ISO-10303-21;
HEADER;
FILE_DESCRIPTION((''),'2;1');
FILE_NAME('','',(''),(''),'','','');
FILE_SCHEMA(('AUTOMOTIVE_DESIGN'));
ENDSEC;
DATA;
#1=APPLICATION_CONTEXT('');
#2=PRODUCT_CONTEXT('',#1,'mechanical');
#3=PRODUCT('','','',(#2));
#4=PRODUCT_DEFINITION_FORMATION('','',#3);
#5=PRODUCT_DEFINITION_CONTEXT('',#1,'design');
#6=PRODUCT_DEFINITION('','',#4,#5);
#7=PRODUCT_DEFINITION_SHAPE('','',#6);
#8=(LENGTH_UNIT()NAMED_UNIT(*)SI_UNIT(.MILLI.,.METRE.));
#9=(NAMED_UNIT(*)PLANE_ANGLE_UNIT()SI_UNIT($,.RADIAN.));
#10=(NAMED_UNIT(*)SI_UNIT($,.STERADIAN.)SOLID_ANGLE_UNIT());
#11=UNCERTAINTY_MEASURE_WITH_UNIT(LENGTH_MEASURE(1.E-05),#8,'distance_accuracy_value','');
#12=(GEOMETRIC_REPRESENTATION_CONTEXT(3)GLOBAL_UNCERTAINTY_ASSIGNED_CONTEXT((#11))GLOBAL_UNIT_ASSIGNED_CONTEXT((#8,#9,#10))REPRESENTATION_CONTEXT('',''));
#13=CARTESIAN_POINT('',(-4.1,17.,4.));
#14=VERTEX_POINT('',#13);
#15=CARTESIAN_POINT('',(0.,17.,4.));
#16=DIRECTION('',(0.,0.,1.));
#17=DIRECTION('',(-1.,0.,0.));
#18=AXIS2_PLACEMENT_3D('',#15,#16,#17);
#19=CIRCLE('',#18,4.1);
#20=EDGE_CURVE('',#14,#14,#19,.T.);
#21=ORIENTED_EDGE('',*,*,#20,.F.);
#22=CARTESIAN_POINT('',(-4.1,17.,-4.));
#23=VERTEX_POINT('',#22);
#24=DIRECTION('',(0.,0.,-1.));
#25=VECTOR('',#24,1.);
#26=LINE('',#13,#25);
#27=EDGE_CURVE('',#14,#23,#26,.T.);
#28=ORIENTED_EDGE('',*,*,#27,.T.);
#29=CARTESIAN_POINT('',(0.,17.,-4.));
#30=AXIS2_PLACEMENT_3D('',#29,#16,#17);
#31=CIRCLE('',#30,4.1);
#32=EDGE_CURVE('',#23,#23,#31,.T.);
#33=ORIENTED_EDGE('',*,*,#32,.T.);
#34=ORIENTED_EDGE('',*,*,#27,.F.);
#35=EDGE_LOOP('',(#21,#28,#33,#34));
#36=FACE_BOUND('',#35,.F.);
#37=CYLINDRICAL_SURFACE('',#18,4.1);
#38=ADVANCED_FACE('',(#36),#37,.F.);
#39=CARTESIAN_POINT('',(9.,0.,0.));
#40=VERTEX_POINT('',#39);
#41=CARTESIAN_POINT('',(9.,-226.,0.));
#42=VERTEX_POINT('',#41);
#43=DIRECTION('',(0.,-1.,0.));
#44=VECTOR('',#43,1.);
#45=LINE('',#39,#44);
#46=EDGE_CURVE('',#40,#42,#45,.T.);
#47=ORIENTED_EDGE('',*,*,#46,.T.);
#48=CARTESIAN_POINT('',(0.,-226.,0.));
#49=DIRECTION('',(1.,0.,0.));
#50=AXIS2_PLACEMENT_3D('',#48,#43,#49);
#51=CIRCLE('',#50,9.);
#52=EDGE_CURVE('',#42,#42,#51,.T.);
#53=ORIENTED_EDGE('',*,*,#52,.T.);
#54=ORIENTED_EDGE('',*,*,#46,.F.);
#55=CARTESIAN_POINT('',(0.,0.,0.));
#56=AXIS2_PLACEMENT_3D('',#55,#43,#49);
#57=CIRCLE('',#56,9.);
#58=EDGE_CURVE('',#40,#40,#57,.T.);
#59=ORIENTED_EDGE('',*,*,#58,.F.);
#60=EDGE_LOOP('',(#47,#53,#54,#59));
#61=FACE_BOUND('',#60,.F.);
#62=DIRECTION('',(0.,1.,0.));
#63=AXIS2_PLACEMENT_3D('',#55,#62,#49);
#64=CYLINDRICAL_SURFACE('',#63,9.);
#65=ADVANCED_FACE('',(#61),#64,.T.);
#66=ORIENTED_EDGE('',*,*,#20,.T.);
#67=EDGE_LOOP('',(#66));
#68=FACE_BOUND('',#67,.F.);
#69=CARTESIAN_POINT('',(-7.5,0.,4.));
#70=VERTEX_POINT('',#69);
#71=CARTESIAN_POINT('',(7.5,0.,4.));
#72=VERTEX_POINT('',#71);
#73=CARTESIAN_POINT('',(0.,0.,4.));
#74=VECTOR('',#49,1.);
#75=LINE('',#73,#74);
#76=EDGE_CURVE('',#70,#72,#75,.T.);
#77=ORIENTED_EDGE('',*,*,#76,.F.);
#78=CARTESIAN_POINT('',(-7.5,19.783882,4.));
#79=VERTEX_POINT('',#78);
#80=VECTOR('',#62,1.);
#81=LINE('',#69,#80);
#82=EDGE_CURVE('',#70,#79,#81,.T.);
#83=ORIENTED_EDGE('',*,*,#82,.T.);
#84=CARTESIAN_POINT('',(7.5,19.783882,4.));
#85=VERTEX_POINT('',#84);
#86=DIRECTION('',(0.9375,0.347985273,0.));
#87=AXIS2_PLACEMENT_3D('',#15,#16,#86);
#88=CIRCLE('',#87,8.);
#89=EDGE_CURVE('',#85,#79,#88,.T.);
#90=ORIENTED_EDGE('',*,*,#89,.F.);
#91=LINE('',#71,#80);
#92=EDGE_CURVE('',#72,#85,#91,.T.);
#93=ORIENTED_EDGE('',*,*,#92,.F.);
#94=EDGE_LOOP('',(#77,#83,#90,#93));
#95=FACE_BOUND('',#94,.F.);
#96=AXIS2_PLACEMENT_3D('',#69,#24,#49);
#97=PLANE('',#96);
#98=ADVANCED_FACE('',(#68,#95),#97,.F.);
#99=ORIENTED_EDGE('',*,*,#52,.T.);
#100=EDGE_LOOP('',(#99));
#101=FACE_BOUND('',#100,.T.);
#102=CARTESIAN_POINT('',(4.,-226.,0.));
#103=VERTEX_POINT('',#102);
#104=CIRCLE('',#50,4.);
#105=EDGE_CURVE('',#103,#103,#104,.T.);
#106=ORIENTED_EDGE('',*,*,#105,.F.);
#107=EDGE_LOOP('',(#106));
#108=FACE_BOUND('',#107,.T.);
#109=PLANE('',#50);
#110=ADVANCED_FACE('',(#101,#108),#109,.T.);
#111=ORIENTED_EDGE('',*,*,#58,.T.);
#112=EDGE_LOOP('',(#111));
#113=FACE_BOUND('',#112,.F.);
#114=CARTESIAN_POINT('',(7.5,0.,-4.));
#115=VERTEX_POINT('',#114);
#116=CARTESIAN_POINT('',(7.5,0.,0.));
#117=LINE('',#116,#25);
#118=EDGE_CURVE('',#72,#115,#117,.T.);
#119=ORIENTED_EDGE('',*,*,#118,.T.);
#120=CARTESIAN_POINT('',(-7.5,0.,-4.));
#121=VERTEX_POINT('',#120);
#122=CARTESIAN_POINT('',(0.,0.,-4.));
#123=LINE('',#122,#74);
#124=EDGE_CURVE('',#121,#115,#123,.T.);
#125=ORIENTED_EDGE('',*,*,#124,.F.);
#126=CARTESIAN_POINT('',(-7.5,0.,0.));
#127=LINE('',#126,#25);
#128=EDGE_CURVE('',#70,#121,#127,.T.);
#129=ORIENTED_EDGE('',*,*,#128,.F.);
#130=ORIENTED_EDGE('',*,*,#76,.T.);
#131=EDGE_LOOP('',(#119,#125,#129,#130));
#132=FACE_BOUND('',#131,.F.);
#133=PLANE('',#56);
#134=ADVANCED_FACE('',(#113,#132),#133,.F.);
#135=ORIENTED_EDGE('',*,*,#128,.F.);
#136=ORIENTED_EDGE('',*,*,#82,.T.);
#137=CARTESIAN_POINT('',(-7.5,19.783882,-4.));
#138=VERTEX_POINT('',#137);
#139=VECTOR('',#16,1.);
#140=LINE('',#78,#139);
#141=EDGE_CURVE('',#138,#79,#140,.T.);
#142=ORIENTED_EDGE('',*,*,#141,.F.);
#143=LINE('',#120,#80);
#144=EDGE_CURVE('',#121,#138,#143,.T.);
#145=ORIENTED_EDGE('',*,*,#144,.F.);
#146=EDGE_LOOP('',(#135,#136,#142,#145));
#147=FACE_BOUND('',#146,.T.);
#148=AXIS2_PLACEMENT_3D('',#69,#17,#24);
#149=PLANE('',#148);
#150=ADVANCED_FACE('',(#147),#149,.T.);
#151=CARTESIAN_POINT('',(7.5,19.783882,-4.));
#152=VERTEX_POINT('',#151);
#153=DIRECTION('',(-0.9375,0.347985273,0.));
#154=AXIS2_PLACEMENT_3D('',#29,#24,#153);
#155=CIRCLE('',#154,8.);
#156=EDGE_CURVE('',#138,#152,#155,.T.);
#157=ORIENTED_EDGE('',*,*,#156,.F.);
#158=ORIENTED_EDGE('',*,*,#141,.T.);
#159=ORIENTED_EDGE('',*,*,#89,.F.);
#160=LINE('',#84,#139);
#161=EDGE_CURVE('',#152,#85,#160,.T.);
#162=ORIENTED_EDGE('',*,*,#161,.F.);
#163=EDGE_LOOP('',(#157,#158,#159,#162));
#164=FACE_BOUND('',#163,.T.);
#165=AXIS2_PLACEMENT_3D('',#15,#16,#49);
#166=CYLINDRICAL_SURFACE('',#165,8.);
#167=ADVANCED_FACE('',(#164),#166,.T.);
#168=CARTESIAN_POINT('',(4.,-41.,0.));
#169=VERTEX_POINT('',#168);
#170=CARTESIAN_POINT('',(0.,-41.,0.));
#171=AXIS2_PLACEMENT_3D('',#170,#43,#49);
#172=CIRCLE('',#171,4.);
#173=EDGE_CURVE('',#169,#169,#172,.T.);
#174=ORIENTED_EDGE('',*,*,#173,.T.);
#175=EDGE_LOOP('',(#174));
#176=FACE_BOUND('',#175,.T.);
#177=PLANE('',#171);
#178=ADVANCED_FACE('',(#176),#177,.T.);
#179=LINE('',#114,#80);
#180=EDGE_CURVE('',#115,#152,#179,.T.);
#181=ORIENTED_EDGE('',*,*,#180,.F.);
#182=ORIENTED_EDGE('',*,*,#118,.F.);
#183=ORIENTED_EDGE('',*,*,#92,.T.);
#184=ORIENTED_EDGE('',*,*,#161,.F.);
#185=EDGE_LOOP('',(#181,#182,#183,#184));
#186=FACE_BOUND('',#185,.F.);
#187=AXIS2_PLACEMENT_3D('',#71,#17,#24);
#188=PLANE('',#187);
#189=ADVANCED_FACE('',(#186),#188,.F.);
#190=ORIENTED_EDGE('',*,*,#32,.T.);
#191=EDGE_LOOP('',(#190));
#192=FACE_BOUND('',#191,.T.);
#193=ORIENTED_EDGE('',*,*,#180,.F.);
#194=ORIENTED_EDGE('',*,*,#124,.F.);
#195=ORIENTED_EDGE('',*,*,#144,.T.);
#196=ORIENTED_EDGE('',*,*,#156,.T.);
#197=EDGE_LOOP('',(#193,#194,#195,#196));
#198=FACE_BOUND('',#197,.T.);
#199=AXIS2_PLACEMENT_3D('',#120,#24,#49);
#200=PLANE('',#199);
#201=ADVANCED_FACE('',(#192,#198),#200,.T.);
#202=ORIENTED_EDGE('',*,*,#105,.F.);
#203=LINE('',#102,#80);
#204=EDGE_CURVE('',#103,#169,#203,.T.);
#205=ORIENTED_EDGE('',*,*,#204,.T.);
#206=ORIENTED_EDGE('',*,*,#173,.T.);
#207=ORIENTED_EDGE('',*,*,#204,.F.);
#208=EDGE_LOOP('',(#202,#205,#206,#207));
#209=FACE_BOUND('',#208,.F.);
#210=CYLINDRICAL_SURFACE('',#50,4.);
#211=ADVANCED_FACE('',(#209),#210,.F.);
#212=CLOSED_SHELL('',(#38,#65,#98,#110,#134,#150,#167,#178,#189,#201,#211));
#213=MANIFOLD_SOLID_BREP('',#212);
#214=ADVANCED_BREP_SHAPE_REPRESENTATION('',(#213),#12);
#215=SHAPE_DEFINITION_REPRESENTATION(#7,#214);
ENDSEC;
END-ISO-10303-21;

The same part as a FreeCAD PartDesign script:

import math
import FreeCAD as App
import Part
import Sketcher
from FreeCAD import Vector

doc = App.newDocument("Part")
params = doc.addObject("Spreadsheet::Sheet", "Params")
for row, (alias, value) in enumerate([
    ("sketch1_diameter", "18 mm"),
    ("pad1_length", "226 mm"),
    ("sketch2_width", "15 mm"),
    ("sketch2_height", "8 mm"),
    ("pad2_length", "25 mm"),
    ("sketch3_radius", "8 mm"),
    ("sketch3_diameter", "8.2 mm"),
    ("sketch3_height", "9 mm"),
    ("sketch4_diameter", "8 mm"),
    ("pocket2_length", "185 mm"),
], start=1):
    params.set(f"A{row}", alias)
    params.set(f"B{row}", "=" + value)
    params.setAlias(f"B{row}", alias)

body = doc.addObject("PartDesign::Body", "Body")

# Sketch on XZ plane
sketch1 = doc.addObject("Sketcher::SketchObject", "Sketch")
body.addObject(sketch1)
sketch1.AttachmentSupport = (doc.XZ_Plane, [""])
sketch1.MapMode = "FlatFace"
sketch1.addGeometry(Part.Circle(Vector(0, 0, 0), Vector(0, 0, 1), 9), False)
sketch1.addConstraint([
    Sketcher.Constraint("Coincident", 0, 3, -1, 1),
    Sketcher.Constraint("Diameter", 0, 18.0),
])
sketch1.setExpression("Constraints[1]", "Params.sketch1_diameter")
pad1 = doc.addObject("PartDesign::Pad", "Pad")
body.addObject(pad1)
pad1.Profile = sketch1
pad1.setExpression("Length", "Params.pad1_length")

# Sketch on XZ plane
sketch2 = doc.addObject("Sketcher::SketchObject", "Sketch001")
body.addObject(sketch2)
sketch2.AttachmentSupport = (doc.XZ_Plane, [""])
sketch2.MapMode = "FlatFace"
sketch2.addGeometry([
    Part.LineSegment(Vector(-8, -4, 0), Vector(-8, 4, 0)),
    Part.LineSegment(Vector(-8, 4, 0), Vector(8, 4, 0)),
    Part.LineSegment(Vector(8, 4, 0), Vector(8, -4, 0)),
    Part.LineSegment(Vector(8, -4, 0), Vector(-8, -4, 0)),
], False)
sketch2.addConstraint([
    Sketcher.Constraint("Coincident", 0, 2, 1, 1),
    Sketcher.Constraint("Coincident", 1, 2, 2, 1),
    Sketcher.Constraint("Coincident", 2, 2, 3, 1),
    Sketcher.Constraint("Coincident", 3, 2, 0, 1),
    Sketcher.Constraint("Vertical", 0),
    Sketcher.Constraint("Horizontal", 1),
    Sketcher.Constraint("Vertical", 2),
    Sketcher.Constraint("Horizontal", 3),
    Sketcher.Constraint("Symmetric", 0, 2, 2, 2, -1, 1),
    Sketcher.Constraint("DistanceX", 1, 1, 1, 2, 15.0),
    Sketcher.Constraint("DistanceY", 0, 1, 0, 2, 8.0),
])
sketch2.setExpression("Constraints[9]", "Params.sketch2_width")
sketch2.setExpression("Constraints[10]", "Params.sketch2_height")
pad2 = doc.addObject("PartDesign::Pad", "Pad001")
body.addObject(pad2)
pad2.Profile = sketch2
pad2.setExpression("Length", "Params.pad2_length")
pad2.Reversed = True

# Sketch on XY plane
sketch3 = doc.addObject("Sketcher::SketchObject", "Sketch002")
body.addObject(sketch3)
sketch3.AttachmentSupport = (doc.XY_Plane, [""])
sketch3.MapMode = "FlatFace"
sketch3.AttachmentOffset = App.Placement(Vector(0, 0, 4), App.Rotation())
sketch3.addGeometry([
    Part.Circle(Vector(0, 17, 0), Vector(0, 0, 1), 4.1),  # 0
    Part.ArcOfCircle(Part.Circle(Vector(0, 17, 0), Vector(0, 0, 1), 8), math.radians(0), math.radians(180)),  # 1
    Part.LineSegment(Vector(8, 17, 0), Vector(8, 26, 0)),  # 2
    Part.LineSegment(Vector(8, 26, 0), Vector(-8, 26, 0)),  # 3
    Part.LineSegment(Vector(-8, 26, 0), Vector(-8, 17, 0)),  # 4
], False)
sketch3.addConstraint([
    Sketcher.Constraint("Tangent", 1, 1, 2, 1),
    Sketcher.Constraint("Coincident", 2, 2, 3, 1),
    Sketcher.Constraint("Coincident", 3, 2, 4, 1),
    Sketcher.Constraint("Tangent", 4, 2, 1, 2),
    Sketcher.Constraint("Vertical", 2),
    Sketcher.Constraint("Horizontal", 3),
    Sketcher.Constraint("Vertical", 4),
    Sketcher.Constraint("Coincident", 1, 3, 0, 3),
    Sketcher.Constraint("PointOnObject", 0, 3, -2),
    Sketcher.Constraint("Radius", 1, 8.0),
    Sketcher.Constraint("Diameter", 0, 8.2),
    Sketcher.Constraint("DistanceY", 2, 1, 2, 2, 9.0),
    Sketcher.Constraint("DistanceY", -1, 1, 0, 3, 17.0),
])
sketch3.setExpression("Constraints[9]", "Params.sketch3_radius")
sketch3.setExpression("Constraints[10]", "Params.sketch3_diameter")
sketch3.setExpression("Constraints[11]", "Params.sketch3_height")
pocket1 = doc.addObject("PartDesign::Pocket", "Pocket")
body.addObject(pocket1)
pocket1.Profile = sketch3
pocket1.Type = "ThroughAll"

# Sketch on XZ plane
sketch4 = doc.addObject("Sketcher::SketchObject", "Sketch003")
body.addObject(sketch4)
sketch4.AttachmentSupport = (doc.XZ_Plane, [""])
sketch4.MapMode = "FlatFace"
sketch4.AttachmentOffset = App.Placement(Vector(0, 0, 226), App.Rotation())
sketch4.addGeometry(Part.Circle(Vector(0, 0, 0), Vector(0, 0, 1), 4), False)
sketch4.addConstraint([
    Sketcher.Constraint("Coincident", 0, 3, -1, 1),
    Sketcher.Constraint("Diameter", 0, 8.0),
])
sketch4.setExpression("Constraints[1]", "Params.sketch4_diameter")
pocket2 = doc.addObject("PartDesign::Pocket", "Pocket001")
body.addObject(pocket2)
pocket2.Profile = sketch4
pocket2.setExpression("Length", "Params.pocket2_length")

doc.recompute()
